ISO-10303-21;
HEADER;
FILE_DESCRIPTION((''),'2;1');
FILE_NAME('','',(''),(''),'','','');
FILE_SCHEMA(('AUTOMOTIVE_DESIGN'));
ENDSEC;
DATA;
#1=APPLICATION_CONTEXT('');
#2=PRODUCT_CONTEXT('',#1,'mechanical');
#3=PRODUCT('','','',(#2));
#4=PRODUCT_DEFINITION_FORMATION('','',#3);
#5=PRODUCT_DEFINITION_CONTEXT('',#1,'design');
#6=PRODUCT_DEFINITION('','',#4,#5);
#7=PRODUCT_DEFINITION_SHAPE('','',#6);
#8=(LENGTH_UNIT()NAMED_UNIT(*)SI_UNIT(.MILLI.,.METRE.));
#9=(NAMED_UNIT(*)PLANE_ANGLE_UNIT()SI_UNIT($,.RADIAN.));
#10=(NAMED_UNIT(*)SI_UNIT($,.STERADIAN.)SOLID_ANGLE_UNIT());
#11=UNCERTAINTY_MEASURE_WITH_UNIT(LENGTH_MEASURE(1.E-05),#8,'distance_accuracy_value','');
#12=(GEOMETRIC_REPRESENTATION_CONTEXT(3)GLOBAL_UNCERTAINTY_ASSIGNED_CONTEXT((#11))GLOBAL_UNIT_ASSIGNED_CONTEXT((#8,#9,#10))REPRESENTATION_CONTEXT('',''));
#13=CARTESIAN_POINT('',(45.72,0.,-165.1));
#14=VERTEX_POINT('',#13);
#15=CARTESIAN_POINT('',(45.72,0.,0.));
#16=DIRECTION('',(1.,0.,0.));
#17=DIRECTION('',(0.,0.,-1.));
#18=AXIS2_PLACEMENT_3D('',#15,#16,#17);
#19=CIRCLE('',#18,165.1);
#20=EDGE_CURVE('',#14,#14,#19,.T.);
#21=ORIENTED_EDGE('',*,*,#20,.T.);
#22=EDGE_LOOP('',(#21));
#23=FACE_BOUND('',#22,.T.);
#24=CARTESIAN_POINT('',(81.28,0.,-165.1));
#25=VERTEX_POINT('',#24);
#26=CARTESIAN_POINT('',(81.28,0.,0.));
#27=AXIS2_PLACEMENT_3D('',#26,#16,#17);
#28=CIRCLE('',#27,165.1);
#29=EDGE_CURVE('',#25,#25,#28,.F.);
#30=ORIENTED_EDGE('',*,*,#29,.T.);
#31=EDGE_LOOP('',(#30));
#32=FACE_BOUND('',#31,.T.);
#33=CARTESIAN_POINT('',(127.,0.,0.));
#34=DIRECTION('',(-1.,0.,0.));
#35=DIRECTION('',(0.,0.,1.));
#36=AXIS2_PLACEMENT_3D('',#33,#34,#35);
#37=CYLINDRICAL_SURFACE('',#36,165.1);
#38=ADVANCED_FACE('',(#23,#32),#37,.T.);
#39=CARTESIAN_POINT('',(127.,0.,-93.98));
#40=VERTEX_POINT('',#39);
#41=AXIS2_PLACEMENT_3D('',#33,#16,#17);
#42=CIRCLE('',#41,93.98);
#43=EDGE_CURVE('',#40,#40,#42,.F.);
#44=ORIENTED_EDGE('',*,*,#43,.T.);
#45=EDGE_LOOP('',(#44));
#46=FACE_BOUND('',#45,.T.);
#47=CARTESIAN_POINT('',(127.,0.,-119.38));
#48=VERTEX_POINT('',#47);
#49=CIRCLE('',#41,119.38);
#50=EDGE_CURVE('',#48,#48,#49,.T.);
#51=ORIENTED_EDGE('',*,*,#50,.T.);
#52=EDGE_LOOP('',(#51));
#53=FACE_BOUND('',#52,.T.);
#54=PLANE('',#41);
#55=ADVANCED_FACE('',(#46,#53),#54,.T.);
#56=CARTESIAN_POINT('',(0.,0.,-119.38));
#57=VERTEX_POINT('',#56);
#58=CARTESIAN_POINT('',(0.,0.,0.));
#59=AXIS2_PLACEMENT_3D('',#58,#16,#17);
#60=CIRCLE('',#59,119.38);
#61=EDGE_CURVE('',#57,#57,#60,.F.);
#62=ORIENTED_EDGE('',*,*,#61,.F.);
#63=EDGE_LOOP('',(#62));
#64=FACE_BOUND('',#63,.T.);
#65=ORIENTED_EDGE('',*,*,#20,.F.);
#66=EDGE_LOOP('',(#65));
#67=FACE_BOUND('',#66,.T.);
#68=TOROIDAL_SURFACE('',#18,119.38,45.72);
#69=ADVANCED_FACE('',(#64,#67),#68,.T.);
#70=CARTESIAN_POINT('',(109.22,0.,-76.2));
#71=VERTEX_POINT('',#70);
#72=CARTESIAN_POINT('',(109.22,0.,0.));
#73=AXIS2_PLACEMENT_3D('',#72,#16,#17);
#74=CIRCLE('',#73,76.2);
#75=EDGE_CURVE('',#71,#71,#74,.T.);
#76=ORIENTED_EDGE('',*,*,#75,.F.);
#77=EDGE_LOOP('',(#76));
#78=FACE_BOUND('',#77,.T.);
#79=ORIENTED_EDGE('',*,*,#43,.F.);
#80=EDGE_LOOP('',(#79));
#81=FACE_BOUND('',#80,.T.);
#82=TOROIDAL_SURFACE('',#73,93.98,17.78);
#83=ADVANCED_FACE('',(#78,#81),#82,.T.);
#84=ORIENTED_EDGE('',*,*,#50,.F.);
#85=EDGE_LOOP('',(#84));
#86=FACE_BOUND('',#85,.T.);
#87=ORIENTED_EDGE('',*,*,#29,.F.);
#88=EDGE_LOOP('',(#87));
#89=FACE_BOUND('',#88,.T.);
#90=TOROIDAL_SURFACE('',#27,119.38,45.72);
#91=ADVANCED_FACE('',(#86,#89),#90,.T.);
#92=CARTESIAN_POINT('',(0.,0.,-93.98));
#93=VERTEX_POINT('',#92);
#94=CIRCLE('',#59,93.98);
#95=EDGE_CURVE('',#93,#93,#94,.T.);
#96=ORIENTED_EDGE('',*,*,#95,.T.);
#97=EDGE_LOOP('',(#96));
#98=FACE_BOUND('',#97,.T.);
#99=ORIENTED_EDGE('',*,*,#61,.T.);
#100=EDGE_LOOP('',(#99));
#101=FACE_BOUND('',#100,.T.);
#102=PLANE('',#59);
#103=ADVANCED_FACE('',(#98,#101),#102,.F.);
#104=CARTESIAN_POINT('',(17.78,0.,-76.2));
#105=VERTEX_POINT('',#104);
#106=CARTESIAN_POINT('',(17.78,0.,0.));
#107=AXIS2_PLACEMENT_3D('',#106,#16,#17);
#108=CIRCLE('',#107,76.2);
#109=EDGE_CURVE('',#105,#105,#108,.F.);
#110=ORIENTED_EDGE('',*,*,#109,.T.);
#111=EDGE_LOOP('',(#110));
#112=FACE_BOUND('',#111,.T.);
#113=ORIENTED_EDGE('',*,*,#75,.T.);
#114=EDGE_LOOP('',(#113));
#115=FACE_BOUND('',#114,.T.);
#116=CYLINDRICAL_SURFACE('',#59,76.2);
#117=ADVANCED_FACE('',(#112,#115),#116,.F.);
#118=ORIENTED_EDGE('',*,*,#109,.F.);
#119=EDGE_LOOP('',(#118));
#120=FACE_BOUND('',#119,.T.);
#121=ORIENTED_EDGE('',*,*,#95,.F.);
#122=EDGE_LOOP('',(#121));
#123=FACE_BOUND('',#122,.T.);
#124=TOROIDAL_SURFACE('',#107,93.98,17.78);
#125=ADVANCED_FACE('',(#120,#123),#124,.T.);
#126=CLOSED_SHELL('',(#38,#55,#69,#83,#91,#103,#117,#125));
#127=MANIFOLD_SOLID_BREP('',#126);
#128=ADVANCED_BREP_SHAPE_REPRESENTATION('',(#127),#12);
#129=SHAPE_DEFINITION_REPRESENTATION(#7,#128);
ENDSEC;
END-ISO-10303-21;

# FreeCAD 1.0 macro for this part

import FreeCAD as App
import Part
import Sketcher

V = App.Vector
Q = App.Units.Quantity


def edges_at(feature, points):
    """Names of the edges that pass closest to the given points."""
    edges = feature.Shape.Edges
    near = lambda p: min(range(len(edges)), key=lambda i: edges[i].distToShape(Part.Vertex(*p))[0])
    return sorted({f"Edge{near(p) + 1}" for p in points})

doc = App.newDocument("Part")
body = doc.addObject("PartDesign::Body", "Body")

sketch1 = body.newObject("Sketcher::SketchObject", "Sketch")
sketch1.AttachmentSupport = (doc.getObject("YZ_Plane"), [""])
sketch1.MapMode = "FlatFace"
sketch1.addGeometry(Part.Circle(V(0, 0, 0), V(0, 0, 1), 165), False)
sketch1.addConstraint(Sketcher.Constraint("Coincident", 0, 3, -1, 1))
sketch1.addConstraint(Sketcher.Constraint("Diameter", 0, Q("13 in")))
pad1 = body.newObject("PartDesign::Pad", "Pad")
pad1.Profile = sketch1
pad1.Length = Q("5 in")

sketch2 = body.newObject("Sketcher::SketchObject", "Sketch001")
sketch2.AttachmentSupport = (doc.getObject("YZ_Plane"), [""])
sketch2.MapMode = "FlatFace"
sketch2.AttachmentOffset = App.Placement(V(0, 0, 5 * 25.4), App.Rotation())
sketch2.addGeometry(Part.Circle(V(0, 0, 0), V(0, 0, 1), 76), False)
sketch2.addConstraint(Sketcher.Constraint("Coincident", 0, 3, -1, 1))
sketch2.addConstraint(Sketcher.Constraint("Diameter", 0, Q("6 in")))
pocket1 = body.newObject("PartDesign::Pocket", "Pocket")
pocket1.Profile = sketch2
pocket1.Type = "ThroughAll"
doc.recompute()

fillet = body.newObject("PartDesign::Fillet", "Fillet")
fillet.Base = (pocket1, edges_at(pocket1, [(0, 0, 76.2), (127, 0, 76.2)]))
fillet.Radius = Q("0.7 in")
doc.recompute()

fillet2 = body.newObject("PartDesign::Fillet", "Fillet001")
fillet2.Base = (fillet, edges_at(fillet, [(0, 0, 165.1), (127, 0, 165.1)]))
fillet2.Radius = Q("1.8 in")

doc.recompute()
